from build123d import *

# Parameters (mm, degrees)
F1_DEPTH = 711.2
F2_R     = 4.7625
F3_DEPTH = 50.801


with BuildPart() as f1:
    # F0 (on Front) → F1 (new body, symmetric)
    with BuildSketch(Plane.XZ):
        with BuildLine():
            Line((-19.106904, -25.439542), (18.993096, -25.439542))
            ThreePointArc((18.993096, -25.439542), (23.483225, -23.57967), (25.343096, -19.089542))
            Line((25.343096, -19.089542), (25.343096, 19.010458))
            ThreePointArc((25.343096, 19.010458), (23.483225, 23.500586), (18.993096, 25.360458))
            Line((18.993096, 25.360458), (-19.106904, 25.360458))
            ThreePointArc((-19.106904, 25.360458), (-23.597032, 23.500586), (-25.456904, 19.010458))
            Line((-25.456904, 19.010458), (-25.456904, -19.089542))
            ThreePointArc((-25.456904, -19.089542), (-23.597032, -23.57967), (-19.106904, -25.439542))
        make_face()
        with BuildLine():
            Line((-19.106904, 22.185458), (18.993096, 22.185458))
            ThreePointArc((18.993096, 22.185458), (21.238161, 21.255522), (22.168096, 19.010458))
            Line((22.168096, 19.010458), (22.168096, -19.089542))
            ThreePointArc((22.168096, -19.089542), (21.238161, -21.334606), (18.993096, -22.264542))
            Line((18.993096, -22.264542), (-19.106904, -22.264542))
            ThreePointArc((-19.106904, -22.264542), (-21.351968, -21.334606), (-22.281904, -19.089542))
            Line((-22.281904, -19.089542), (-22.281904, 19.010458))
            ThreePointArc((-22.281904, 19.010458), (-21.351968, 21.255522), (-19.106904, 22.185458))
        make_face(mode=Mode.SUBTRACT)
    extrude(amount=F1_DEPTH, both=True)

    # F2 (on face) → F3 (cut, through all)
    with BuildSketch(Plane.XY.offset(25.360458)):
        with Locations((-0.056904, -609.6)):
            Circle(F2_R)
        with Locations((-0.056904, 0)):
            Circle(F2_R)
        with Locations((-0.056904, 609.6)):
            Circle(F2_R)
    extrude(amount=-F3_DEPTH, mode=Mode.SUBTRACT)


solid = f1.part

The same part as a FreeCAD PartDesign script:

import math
import FreeCAD as App
import Part
import Sketcher
from FreeCAD import Vector
Q = App.Units.Quantity

doc = App.newDocument("Part")
params = doc.addObject("Spreadsheet::Sheet", "Params")
for row, (alias, value) in enumerate([
    ("sketch1_radius", "0.2499999 in"),
    ("sketch1_width", "1.5 in"),
    ("sketch1_radius2", "0.125 in"),
    ("pad1_length", "56 in"),
    ("sketch2_diameter", "0.375 in"),
], start=1):
    params.set(f"A{row}", alias)
    params.set(f"B{row}", "=" + value)
    params.setAlias(f"B{row}", alias)

body = doc.addObject("PartDesign::Body", "Body")

sketch1 = body.newObject("Sketcher::SketchObject", "Sketch")
sketch1.AttachmentSupport = (doc.getObject("XZ_Plane"), [""])
sketch1.MapMode = "FlatFace"
sketch1.addGeometry([
    Part.LineSegment(Vector(-19.1, -25.4, 0), Vector(19, -25.4, 0)),
    Part.ArcOfCircle(Part.Circle(Vector(19, -19.1, 0), Vector(0, 0, 1), 6.3), math.radians(-90), math.radians(0)),
    Part.LineSegment(Vector(25.3, -19.1, 0), Vector(25.3, 19, 0)),
    Part.ArcOfCircle(Part.Circle(Vector(19, 19, 0), Vector(0, 0, 1), 6.3), math.radians(0), math.radians(90)),
    Part.LineSegment(Vector(19, 25.4, 0), Vector(-19.1, 25.4, 0)),
    Part.ArcOfCircle(Part.Circle(Vector(-19.1, 19, 0), Vector(0, 0, 1), 6.4), math.radians(90), math.radians(180)),
    Part.LineSegment(Vector(-25.5, 19, 0), Vector(-25.5, -19.1, 0)),
    Part.ArcOfCircle(Part.Circle(Vector(-19.1, -19.1, 0), Vector(0, 0, 1), 6.4), math.radians(-180), math.radians(-90)),
    Part.ArcOfCircle(Part.Circle(Vector(-19.1, 19, 0), Vector(0, 0, 1), 3.2), math.radians(90), math.radians(180)),
    Part.LineSegment(Vector(-19.1, 22.2, 0), Vector(19, 22.2, 0)),
    Part.ArcOfCircle(Part.Circle(Vector(19, 19, 0), Vector(0, 0, 1), 3.2), math.radians(0), math.radians(90)),
    Part.LineSegment(Vector(22.2, 19, 0), Vector(22.2, -19.1, 0)),
    Part.ArcOfCircle(Part.Circle(Vector(19, -19.1, 0), Vector(0, 0, 1), 3.2), math.radians(-90), math.radians(0)),
    Part.LineSegment(Vector(19, -22.3, 0), Vector(-19.1, -22.3, 0)),
    Part.ArcOfCircle(Part.Circle(Vector(-19.1, -19.1, 0), Vector(0, 0, 1), 3.2), math.radians(-180), math.radians(-90)),
    Part.LineSegment(Vector(-22.3, -19.1, 0), Vector(-22.3, 19, 0)),
], False)
sketch1.addConstraint([
    Sketcher.Constraint("Tangent", 0, 2, 1, 1),
    Sketcher.Constraint("Tangent", 1, 2, 2, 1),
    Sketcher.Constraint("Tangent", 2, 2, 3, 1),
    Sketcher.Constraint("Tangent", 3, 2, 4, 1),
    Sketcher.Constraint("Tangent", 4, 2, 5, 1),
    Sketcher.Constraint("Tangent", 5, 2, 6, 1),
    Sketcher.Constraint("Tangent", 6, 2, 7, 1),
    Sketcher.Constraint("Tangent", 7, 2, 0, 1),
    Sketcher.Constraint("Tangent", 8, 1, 9, 1),
    Sketcher.Constraint("Tangent", 9, 2, 10, 2),
    Sketcher.Constraint("Tangent", 10, 1, 11, 1),
    Sketcher.Constraint("Tangent", 11, 2, 12, 2),
    Sketcher.Constraint("Tangent", 12, 1, 13, 1),
    Sketcher.Constraint("Tangent", 13, 2, 14, 2),
    Sketcher.Constraint("Tangent", 14, 1, 15, 1),
    Sketcher.Constraint("Tangent", 15, 2, 8, 2),
    Sketcher.Constraint("Horizontal", 0),
    Sketcher.Constraint("Vertical", 2),
    Sketcher.Constraint("Horizontal", 4),
    Sketcher.Constraint("Vertical", 6),
    Sketcher.Constraint("Horizontal", 9),
    Sketcher.Constraint("Vertical", 11),
    Sketcher.Constraint("Horizontal", 13),
    Sketcher.Constraint("Vertical", 15),
    Sketcher.Constraint("Coincident", 8, 3, 5, 3),
    Sketcher.Constraint("Coincident", 10, 3, 3, 3),
    Sketcher.Constraint("Coincident", 12, 3, 1, 3),
    Sketcher.Constraint("Equal", 1, 3),
    Sketcher.Constraint("Equal", 3, 5),
    Sketcher.Constraint("Equal", 5, 7),
    Sketcher.Constraint("Equal", 12, 14),
    Sketcher.Constraint("Equal", 13, 2),
    Sketcher.Constraint("Radius", 1, Q("0.2499999 in")),
    Sketcher.Constraint("DistanceX", 0, 1, 0, 2, Q("1.5 in")),
    Sketcher.Constraint("Radius", 8, Q("0.125 in")),
    Sketcher.Constraint("DistanceY", -1, 1, 3, 3, 19.010459),
    Sketcher.Constraint("DistanceX", -1, 1, 1, 3, 18.993098),
])
sketch1.setExpression("Constraints[32]", "Params.sketch1_radius")
sketch1.setExpression("Constraints[33]", "Params.sketch1_width")
sketch1.setExpression("Constraints[34]", "Params.sketch1_radius2")
pad1 = body.newObject("PartDesign::Pad", "Pad")
pad1.Profile = sketch1
pad1.setExpression("Length", "Params.pad1_length")
pad1.Midplane = True

sketch2 = body.newObject("Sketcher::SketchObject", "Sketch001")
sketch2.AttachmentSupport = (doc.getObject("XY_Plane"), [""])
sketch2.MapMode = "FlatFace"
sketch2.AttachmentOffset = App.Placement(Vector(0, 0, 25.360458), App.Rotation())
sketch2.addGeometry([
    Part.Circle(Vector(-0.1, -609.6, 0), Vector(0, 0, 1), 4.8),
    Part.Circle(Vector(-0.1, 0, 0), Vector(0, 0, 1), 4.8),
    Part.Circle(Vector(-0.1, 609.6, 0), Vector(0, 0, 1), 4.8),
], False)
sketch2.addConstraint([
    Sketcher.Constraint("Equal", 0, 1),
    Sketcher.Constraint("Equal", 1, 2),
    Sketcher.Constraint("Symmetric", 0, 3, 2, 3, -1),
    Sketcher.Constraint("PointOnObject", 1, 3, -1),
    Sketcher.Constraint("Vertical", 0, 3, 1, 3),
    Sketcher.Constraint("Diameter", 0, Q("0.375 in")),
    Sketcher.Constraint("DistanceY", 0, 3, -1, 1, Q("24 in")),
    Sketcher.Constraint("DistanceX", 0, 3, -1, 1, 0.056904),
])
sketch2.setExpression("Constraints[5]", "Params.sketch2_diameter")
pocket1 = body.newObject("PartDesign::Pocket", "Pocket")
pocket1.Profile = sketch2
pocket1.Type = "ThroughAll"

doc.recompute()
